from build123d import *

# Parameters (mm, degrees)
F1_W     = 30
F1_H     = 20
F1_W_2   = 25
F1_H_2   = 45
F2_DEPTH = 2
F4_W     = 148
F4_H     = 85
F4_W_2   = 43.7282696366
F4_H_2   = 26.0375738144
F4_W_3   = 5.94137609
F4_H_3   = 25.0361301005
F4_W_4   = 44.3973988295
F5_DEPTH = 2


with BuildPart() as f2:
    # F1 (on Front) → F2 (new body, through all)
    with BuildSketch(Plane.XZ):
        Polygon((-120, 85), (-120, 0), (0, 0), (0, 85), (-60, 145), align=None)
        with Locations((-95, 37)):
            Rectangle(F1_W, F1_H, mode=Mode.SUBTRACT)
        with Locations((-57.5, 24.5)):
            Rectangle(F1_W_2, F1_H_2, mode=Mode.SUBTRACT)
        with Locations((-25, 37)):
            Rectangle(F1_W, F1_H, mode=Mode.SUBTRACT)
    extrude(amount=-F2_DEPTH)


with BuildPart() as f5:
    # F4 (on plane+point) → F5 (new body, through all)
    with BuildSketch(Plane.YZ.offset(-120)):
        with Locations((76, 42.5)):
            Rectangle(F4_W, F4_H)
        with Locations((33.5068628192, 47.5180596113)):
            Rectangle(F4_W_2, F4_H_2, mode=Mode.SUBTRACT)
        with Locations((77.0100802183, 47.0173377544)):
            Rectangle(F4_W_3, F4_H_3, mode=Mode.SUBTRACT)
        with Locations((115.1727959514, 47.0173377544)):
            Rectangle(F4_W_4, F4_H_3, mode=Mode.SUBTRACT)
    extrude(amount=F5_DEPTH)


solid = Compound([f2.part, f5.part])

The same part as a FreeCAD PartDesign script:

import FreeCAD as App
import Part
import Sketcher

V = App.Vector
Q = App.Units.Quantity

doc = App.newDocument("Part")
body = doc.addObject("PartDesign::Body", "Body")

# Sketch on XZ plane
sketch1 = body.newObject("Sketcher::SketchObject", "Sketch")
sketch1.AttachmentSupport = (doc.getObject("XZ_Plane"), [""])
sketch1.MapMode = "FlatFace"
sketch1.addGeometry([
    Part.LineSegment(V(-120, 85, 0), V(-120, 0, 0)),  # 0
    Part.LineSegment(V(-120, 0, 0), V(0, 0, 0)),  # 1
    Part.LineSegment(V(0, 0, 0), V(0, 85, 0)),  # 2
    Part.LineSegment(V(0, 85, 0), V(-60, 145, 0)),  # 3
    Part.LineSegment(V(-60, 145, 0), V(-120, 85, 0)),  # 4
    Part.LineSegment(V(-80, 27, 0), V(-110, 27, 0)),  # 5
    Part.LineSegment(V(-110, 27, 0), V(-110, 47, 0)),  # 6
    Part.LineSegment(V(-110, 47, 0), V(-80, 47, 0)),  # 7
    Part.LineSegment(V(-80, 47, 0), V(-80, 27, 0)),  # 8
    Part.LineSegment(V(-45, 2, 0), V(-70, 2, 0)),  # 9
    Part.LineSegment(V(-70, 2, 0), V(-70, 47, 0)),  # 10
    Part.LineSegment(V(-70, 47, 0), V(-45, 47, 0)),  # 11
    Part.LineSegment(V(-45, 47, 0), V(-45, 2, 0)),  # 12
    Part.LineSegment(V(-10, 27, 0), V(-40, 27, 0)),  # 13
    Part.LineSegment(V(-40, 27, 0), V(-40, 47, 0)),  # 14
    Part.LineSegment(V(-40, 47, 0), V(-10, 47, 0)),  # 15
    Part.LineSegment(V(-10, 47, 0), V(-10, 27, 0)),  # 16
], False)
sketch1.addConstraint([
    Sketcher.Constraint("Coincident", 0, 2, 1, 1),
    Sketcher.Constraint("Coincident", 1, 2, 2, 1),
    Sketcher.Constraint("Coincident", 2, 2, 3, 1),
    Sketcher.Constraint("Coincident", 3, 2, 4, 1),
    Sketcher.Constraint("Coincident", 4, 2, 0, 1),
    Sketcher.Constraint("Coincident", 5, 2, 6, 1),
    Sketcher.Constraint("Coincident", 6, 2, 7, 1),
    Sketcher.Constraint("Coincident", 7, 2, 8, 1),
    Sketcher.Constraint("Coincident", 8, 2, 5, 1),
    Sketcher.Constraint("Coincident", 9, 2, 10, 1),
    Sketcher.Constraint("Coincident", 10, 2, 11, 1),
    Sketcher.Constraint("Coincident", 11, 2, 12, 1),
    Sketcher.Constraint("Coincident", 12, 2, 9, 1),
    Sketcher.Constraint("Coincident", 13, 2, 14, 1),
    Sketcher.Constraint("Coincident", 14, 2, 15, 1),
    Sketcher.Constraint("Coincident", 15, 2, 16, 1),
    Sketcher.Constraint("Coincident", 16, 2, 13, 1),
    Sketcher.Constraint("Vertical", 0),
    Sketcher.Constraint("Horizontal", 1),
    Sketcher.Constraint("Vertical", 2),
    Sketcher.Constraint("Horizontal", 5),
    Sketcher.Constraint("Vertical", 6),
    Sketcher.Constraint("Horizontal", 7),
    Sketcher.Constraint("Vertical", 8),
    Sketcher.Constraint("Horizontal", 9),
    Sketcher.Constraint("Vertical", 10),
    Sketcher.Constraint("Horizontal", 11),
    Sketcher.Constraint("Vertical", 12),
    Sketcher.Constraint("Horizontal", 13),
    Sketcher.Constraint("Vertical", 14),
    Sketcher.Constraint("Horizontal", 15),
    Sketcher.Constraint("Vertical", 16),
    Sketcher.Constraint("Coincident", 1, 2, -1, 1),
    Sketcher.Constraint("Perpendicular", 3, 4),
    Sketcher.Constraint("Horizontal", 2, 2, 4, 2),
    Sketcher.Constraint("Horizontal", 7, 2, 10, 2),
    Sketcher.Constraint("Horizontal", 8, 2, 13, 2),
    Sketcher.Constraint("Horizontal", 11, 2, 14, 2),
    Sketcher.Constraint("Equal", 7, 13),
    Sketcher.Constraint("Equal", 3, 4),
    Sketcher.Constraint("DistanceX", 1, 1, 1, 2, Q("120 mm")),
    Sketcher.Constraint("DistanceX", 5, 2, 5, 1, Q("30 mm")),
    Sketcher.Constraint("DistanceX", 9, 2, 9, 1, Q("25 mm")),
    Sketcher.Constraint("DistanceY", 0, 2, 0, 1, Q("85 mm")),
    Sketcher.Constraint("DistanceY", 6, 1, 6, 2, Q("20 mm")),
    Sketcher.Constraint("DistanceY", 10, 1, 10, 2, Q("45 mm")),
    Sketcher.Constraint("DistanceX", 5, 2, -1, 1, Q("110 mm")),
    Sketcher.Constraint("DistanceY", -1, 1, 5, 2, Q("27 mm")),
    Sketcher.Constraint("DistanceX", 9, 2, -1, 1, Q("70 mm")),
    Sketcher.Constraint("DistanceX", 13, 2, -1, 1, Q("40 mm")),
])
pad1 = body.newObject("PartDesign::Pad", "Pad")
pad1.Profile = sketch1
pad1.Length = 2
pad1.Reversed = True
body2 = doc.addObject("PartDesign::Body", "Body001")

# Sketch on YZ plane
sketch2 = body2.newObject("Sketcher::SketchObject", "Sketch001")
sketch2.AttachmentSupport = (doc.getObject("YZ_Plane001"), [""])
sketch2.MapMode = "FlatFace"
sketch2.AttachmentOffset = App.Placement(V(0, 0, -120), App.Rotation())
sketch2.addGeometry([
    Part.LineSegment(V(2, 85, 0), V(2, 0, 0)),  # 0
    Part.LineSegment(V(2, 0, 0), V(150, 0, 0)),  # 1
    Part.LineSegment(V(150, 0, 0), V(150, 85, 0)),  # 2
    Part.LineSegment(V(150, 85, 0), V(2, 85, 0)),  # 3
    Part.LineSegment(V(80, 34, 0), V(74, 34, 0)),  # 4
    Part.LineSegment(V(74, 34, 0), V(74, 60, 0)),  # 5
    Part.LineSegment(V(74, 60, 0), V(80, 60, 0)),  # 6
    Part.LineSegment(V(80, 60, 0), V(80, 34, 0)),  # 7
    Part.LineSegment(V(137, 34, 0), V(93, 34, 0)),  # 8
    Part.LineSegment(V(93, 34, 0), V(93, 60, 0)),  # 9
    Part.LineSegment(V(93, 60, 0), V(137, 60, 0)),  # 10
    Part.LineSegment(V(137, 60, 0), V(137, 34, 0)),  # 11
    Part.LineSegment(V(55, 34, 0), V(12, 34, 0)),  # 12
    Part.LineSegment(V(12, 34, 0), V(12, 61, 0)),  # 13
    Part.LineSegment(V(12, 61, 0), V(55, 61, 0)),  # 14
    Part.LineSegment(V(55, 61, 0), V(55, 34, 0)),  # 15
], False)
sketch2.addConstraint([
    Sketcher.Constraint("Coincident", 0, 2, 1, 1),
    Sketcher.Constraint("Coincident", 1, 2, 2, 1),
    Sketcher.Constraint("Coincident", 2, 2, 3, 1),
    Sketcher.Constraint("Coincident", 3, 2, 0, 1),
    Sketcher.Constraint("Coincident", 4, 2, 5, 1),
    Sketcher.Constraint("Coincident", 5, 2, 6, 1),
    Sketcher.Constraint("Coincident", 6, 2, 7, 1),
    Sketcher.Constraint("Coincident", 7, 2, 4, 1),
    Sketcher.Constraint("Coincident", 8, 2, 9, 1),
    Sketcher.Constraint("Coincident", 9, 2, 10, 1),
    Sketcher.Constraint("Coincident", 10, 2, 11, 1),
    Sketcher.Constraint("Coincident", 11, 2, 8, 1),
    Sketcher.Constraint("Coincident", 12, 2, 13, 1),
    Sketcher.Constraint("Coincident", 13, 2, 14, 1),
    Sketcher.Constraint("Coincident", 14, 2, 15, 1),
    Sketcher.Constraint("Coincident", 15, 2, 12, 1),
    Sketcher.Constraint("Vertical", 0),
    Sketcher.Constraint("Horizontal", 1),
    Sketcher.Constraint("Vertical", 2),
    Sketcher.Constraint("Horizontal", 3),
    Sketcher.Constraint("Horizontal", 4),
    Sketcher.Constraint("Vertical", 5),
    Sketcher.Constraint("Horizontal", 6),
    Sketcher.Constraint("Vertical", 7),
    Sketcher.Constraint("Horizontal", 8),
    Sketcher.Constraint("Vertical", 9),
    Sketcher.Constraint("Horizontal", 10),
    Sketcher.Constraint("Vertical", 11),
    Sketcher.Constraint("Horizontal", 12),
    Sketcher.Constraint("Vertical", 13),
    Sketcher.Constraint("Horizontal", 14),
    Sketcher.Constraint("Vertical", 15),
    Sketcher.Constraint("PointOnObject", 0, 2, -1),
    Sketcher.Constraint("Horizontal", 7, 2, 8, 2),
    Sketcher.Constraint("Horizontal", 6, 2, 9, 2),
    Sketcher.Constraint("Horizontal", 11, 2, 12, 2),
    Sketcher.Constraint("DistanceX", 1, 1, 1, 2, Q("148 mm")),
    Sketcher.Constraint("DistanceY", 0, 2, 0, 1, Q("85 mm")),
    Sketcher.Constraint("DistanceX", -1, 1, 0, 2, Q("2 mm")),
    Sketcher.Constraint("DistanceX", 8, 2, 8, 1, Q("44.397399 mm")),
    Sketcher.Constraint("DistanceX", 12, 2, 12, 1, Q("43.72827 mm")),
    Sketcher.Constraint("DistanceY", 5, 1, 5, 2, Q("25.03613 mm")),
    Sketcher.Constraint("DistanceX", 14, 2, 9, 2, Q("37.603099 mm")),
    Sketcher.Constraint("DistanceX", 4, 2, 4, 1, Q("5.941376 mm")),
    Sketcher.Constraint("DistanceY", 13, 1, 13, 2, Q("26.037574 mm")),
    Sketcher.Constraint("DistanceX", -1, 1, 6, 2, Q("79.980768 mm")),
    Sketcher.Constraint("DistanceX", -1, 1, 12, 2, Q("11.642728 mm")),
    Sketcher.Constraint("DistanceY", -1, 1, 4, 2, Q("34.499273 mm")),
])
pad2 = body2.newObject("PartDesign::Pad", "Pad001")
pad2.Profile = sketch2
pad2.Length = 2

doc.recompute()
